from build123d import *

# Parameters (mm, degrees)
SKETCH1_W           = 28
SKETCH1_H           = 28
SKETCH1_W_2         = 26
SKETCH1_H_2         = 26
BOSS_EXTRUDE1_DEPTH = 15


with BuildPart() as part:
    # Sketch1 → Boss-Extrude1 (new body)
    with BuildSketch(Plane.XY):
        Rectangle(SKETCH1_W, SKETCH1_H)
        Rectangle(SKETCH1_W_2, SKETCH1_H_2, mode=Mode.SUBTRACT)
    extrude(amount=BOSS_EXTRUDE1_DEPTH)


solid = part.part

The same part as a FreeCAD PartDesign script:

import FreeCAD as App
import Part
import Sketcher
Q = App.Units.Quantity

doc = App.newDocument("Part")
body = doc.addObject("PartDesign::Body", "Body")

# Sketch on XY plane
sketch1 = body.newObject("Sketcher::SketchObject", "Sketch")
sketch1.AttachmentSupport = (doc.getObject("XY_Plane"), [""])
sketch1.MapMode = "FlatFace"
sketch1.addGeometry(Part.LineSegment(App.Vector(-14, 14, 0), App.Vector(-14, -14, 0)), False)
sketch1.addGeometry(Part.LineSegment(App.Vector(-14, -14, 0), App.Vector(14, -14, 0)), False)
sketch1.addGeometry(Part.LineSegment(App.Vector(14, -14, 0), App.Vector(14, 14, 0)), False)
sketch1.addGeometry(Part.LineSegment(App.Vector(14, 14, 0), App.Vector(-14, 14, 0)), False)
sketch1.addGeometry(Part.LineSegment(App.Vector(13, -13, 0), App.Vector(-13, -13, 0)), False)
sketch1.addGeometry(Part.LineSegment(App.Vector(-13, -13, 0), App.Vector(-13, 13, 0)), False)
sketch1.addGeometry(Part.LineSegment(App.Vector(-13, 13, 0), App.Vector(13, 13, 0)), False)
sketch1.addGeometry(Part.LineSegment(App.Vector(13, 13, 0), App.Vector(13, -13, 0)), False)
sketch1.addConstraint(Sketcher.Constraint("Coincident", 0, 2, 1, 1))
sketch1.addConstraint(Sketcher.Constraint("Coincident", 1, 2, 2, 1))
sketch1.addConstraint(Sketcher.Constraint("Coincident", 2, 2, 3, 1))
sketch1.addConstraint(Sketcher.Constraint("Coincident", 3, 2, 0, 1))
sketch1.addConstraint(Sketcher.Constraint("Coincident", 4, 2, 5, 1))
sketch1.addConstraint(Sketcher.Constraint("Coincident", 5, 2, 6, 1))
sketch1.addConstraint(Sketcher.Constraint("Coincident", 6, 2, 7, 1))
sketch1.addConstraint(Sketcher.Constraint("Coincident", 7, 2, 4, 1))
sketch1.addConstraint(Sketcher.Constraint("Vertical", 0))
sketch1.addConstraint(Sketcher.Constraint("Horizontal", 1))
sketch1.addConstraint(Sketcher.Constraint("Vertical", 2))
sketch1.addConstraint(Sketcher.Constraint("Horizontal", 3))
sketch1.addConstraint(Sketcher.Constraint("Horizontal", 4))
sketch1.addConstraint(Sketcher.Constraint("Vertical", 5))
sketch1.addConstraint(Sketcher.Constraint("Horizontal", 6))
sketch1.addConstraint(Sketcher.Constraint("Vertical", 7))
sketch1.addConstraint(Sketcher.Constraint("Symmetric", 0, 2, 2, 2, -1, 1))
sketch1.addConstraint(Sketcher.Constraint("Symmetric", 4, 2, 6, 2, -1, 1))
sketch1.addConstraint(Sketcher.Constraint("Equal", 3, 0))
sketch1.addConstraint(Sketcher.Constraint("Equal", 6, 5))
sketch1.addConstraint(Sketcher.Constraint("DistanceX", 1, 1, 1, 2, Q("28 mm")))
sketch1.addConstraint(Sketcher.Constraint("DistanceX", 4, 2, 4, 1, Q("26 mm")))
pad1 = body.newObject("PartDesign::Pad", "Pad")
pad1.Profile = sketch1
pad1.Length = 15

doc.recompute()
